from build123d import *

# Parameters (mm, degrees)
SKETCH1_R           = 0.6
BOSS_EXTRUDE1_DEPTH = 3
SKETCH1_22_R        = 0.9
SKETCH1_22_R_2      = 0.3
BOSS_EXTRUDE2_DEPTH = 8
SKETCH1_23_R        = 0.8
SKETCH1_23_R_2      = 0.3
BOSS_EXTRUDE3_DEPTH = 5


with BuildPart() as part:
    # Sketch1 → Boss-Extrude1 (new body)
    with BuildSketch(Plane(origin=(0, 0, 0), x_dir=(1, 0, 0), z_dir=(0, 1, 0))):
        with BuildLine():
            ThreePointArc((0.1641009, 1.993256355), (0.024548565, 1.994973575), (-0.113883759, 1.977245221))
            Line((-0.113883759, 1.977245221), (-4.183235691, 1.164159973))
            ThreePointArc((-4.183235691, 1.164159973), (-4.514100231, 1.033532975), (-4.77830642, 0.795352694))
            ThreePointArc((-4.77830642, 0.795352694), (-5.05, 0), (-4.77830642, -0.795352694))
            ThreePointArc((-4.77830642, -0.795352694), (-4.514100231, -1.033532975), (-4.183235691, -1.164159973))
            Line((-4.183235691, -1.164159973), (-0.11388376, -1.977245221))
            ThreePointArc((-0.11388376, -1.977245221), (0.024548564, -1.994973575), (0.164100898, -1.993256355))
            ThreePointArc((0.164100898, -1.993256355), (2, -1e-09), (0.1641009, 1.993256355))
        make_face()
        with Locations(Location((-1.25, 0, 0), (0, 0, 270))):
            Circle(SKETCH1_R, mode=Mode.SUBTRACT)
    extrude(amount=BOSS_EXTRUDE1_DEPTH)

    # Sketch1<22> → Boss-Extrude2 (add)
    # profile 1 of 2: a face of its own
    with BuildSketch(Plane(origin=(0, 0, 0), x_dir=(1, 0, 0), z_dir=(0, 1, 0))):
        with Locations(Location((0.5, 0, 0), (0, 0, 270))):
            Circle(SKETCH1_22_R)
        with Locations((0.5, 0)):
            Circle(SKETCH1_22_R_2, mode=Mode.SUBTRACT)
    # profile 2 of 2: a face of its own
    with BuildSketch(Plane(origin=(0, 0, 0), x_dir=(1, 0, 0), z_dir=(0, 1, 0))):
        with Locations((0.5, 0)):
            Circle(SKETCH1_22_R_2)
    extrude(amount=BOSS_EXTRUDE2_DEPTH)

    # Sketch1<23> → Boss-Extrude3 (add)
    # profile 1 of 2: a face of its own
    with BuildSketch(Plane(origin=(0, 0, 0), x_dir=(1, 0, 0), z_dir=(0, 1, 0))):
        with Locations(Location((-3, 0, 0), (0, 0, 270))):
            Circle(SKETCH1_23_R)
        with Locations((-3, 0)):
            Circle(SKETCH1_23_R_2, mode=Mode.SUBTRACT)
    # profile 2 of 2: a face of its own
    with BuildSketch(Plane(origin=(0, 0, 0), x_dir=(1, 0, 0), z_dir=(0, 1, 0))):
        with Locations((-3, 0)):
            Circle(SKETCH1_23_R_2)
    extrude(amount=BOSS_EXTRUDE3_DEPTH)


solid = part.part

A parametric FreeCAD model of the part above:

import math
import FreeCAD as App
import Part
import Sketcher
from FreeCAD import Vector
Q = App.Units.Quantity

doc = App.newDocument("Part")
body = doc.addObject("PartDesign::Body", "Body")

# Sketch on XZ plane
sketch1 = doc.addObject("Sketcher::SketchObject", "Sketch")
body.addObject(sketch1)
sketch1.AttachmentSupport = (doc.XZ_Plane, [""])
sketch1.MapMode = "FlatFace"
sketch1.addGeometry([
    Part.ArcOfCircle(Part.Circle(Vector(0.08, -1, 0), Vector(0, 0, 1), 1), math.radians(-101.3), math.radians(-85.29)),  # 0
    Part.LineSegment(Vector(-0.11, -1.98, 0), Vector(-4.18, -1.16, 0)),  # 1
    Part.ArcOfCircle(Part.Circle(Vector(-3.99, -0.18, 0), Vector(0, 0, 1), 1), math.radians(-142), math.radians(-101)),  # 2
    Part.ArcOfCircle(Part.Circle(Vector(-3.75, 0, 0), Vector(0, 0, 1), 1.3), math.radians(142), math.radians(218)),  # 3
    Part.ArcOfCircle(Part.Circle(Vector(-3.99, 0.18, 0), Vector(0, 0, 1), 1), math.radians(101), math.radians(142)),  # 4
    Part.LineSegment(Vector(-4.18, 1.16, 0), Vector(-0.11, 1.98, 0)),  # 5
    Part.ArcOfCircle(Part.Circle(Vector(0.08, 1, 0), Vector(0, 0, 1), 1), math.radians(85.29), math.radians(101.3)),  # 6
    Part.ArcOfCircle(Part.Circle(Vector(0, 0, 0), Vector(0, 0, 1), 2), math.radians(-85), math.radians(85)),  # 7
    Part.Circle(Vector(-1.25, 0, 0), Vector(0, 0, 1), 0.6),  # 8
], False)
sketch1.addConstraint([
    Sketcher.Constraint("Tangent", 0, 1, 1, 1),
    Sketcher.Constraint("Tangent", 1, 2, 2, 2),
    Sketcher.Constraint("Tangent", 2, 1, 3, 2),
    Sketcher.Constraint("Tangent", 3, 1, 4, 2),
    Sketcher.Constraint("Tangent", 4, 1, 5, 1),
    Sketcher.Constraint("Tangent", 5, 2, 6, 2),
    Sketcher.Constraint("Tangent", 6, 1, 7, 2),
    Sketcher.Constraint("Tangent", 7, 1, 0, 2),
    Sketcher.Constraint("Coincident", 7, 3, -1, 1),
    Sketcher.Constraint("Equal", 0, 2),
    Sketcher.Constraint("Equal", 2, 4),
    Sketcher.Constraint("Equal", 4, 6),
    Sketcher.Constraint("Symmetric", 2, 3, 4, 3, -1),
    Sketcher.Constraint("PointOnObject", 8, 3, -1),
    Sketcher.Constraint("Vertical", 0, 3, 6, 3),
    Sketcher.Constraint("Radius", 0, Q("1 mm")),
    Sketcher.Constraint("Radius", 7, Q("2 mm")),
    Sketcher.Constraint("Diameter", 8, Q("1.2 mm")),
    Sketcher.Constraint("Radius", 3, Q("1.3 mm")),
    Sketcher.Constraint("DistanceX", 3, 3, 8, 3, Q("2.5 mm")),
    Sketcher.Constraint("DistanceX", 3, 3, -1, 1, Q("3.75 mm")),
    Sketcher.Constraint("DistanceX", 2, 3, -1, 1, Q("3.987301 mm")),
    Sketcher.Constraint("DistanceX", -1, 1, 6, 1, Q("0.164101 mm")),
])
pad1 = doc.addObject("PartDesign::Pad", "Pad")
body.addObject(pad1)
pad1.Profile = sketch1
pad1.Length = 3
pad1.Reversed = True

# Sketch on XZ plane
sketch2 = doc.addObject("Sketcher::SketchObject", "Sketch001")
body.addObject(sketch2)
sketch2.AttachmentSupport = (doc.XZ_Plane, [""])
sketch2.MapMode = "FlatFace"
sketch2.addGeometry(Part.Circle(Vector(0.5, 0, 0), Vector(0, 0, 1), 0.9), False)
sketch2.addConstraint([
    Sketcher.Constraint("PointOnObject", 0, 3, -1),
    Sketcher.Constraint("Diameter", 0, Q("1.8 mm")),
    Sketcher.Constraint("DistanceX", -1, 1, 0, 3, Q("0.5 mm")),
])
pad2 = doc.addObject("PartDesign::Pad", "Pad001")
body.addObject(pad2)
pad2.Profile = sketch2
pad2.Length = 8
pad2.Reversed = True

# Sketch on XZ plane
sketch3 = doc.addObject("Sketcher::SketchObject", "Sketch002")
body.addObject(sketch3)
sketch3.AttachmentSupport = (doc.XZ_Plane, [""])
sketch3.MapMode = "FlatFace"
sketch3.addGeometry(Part.Circle(Vector(-3, 0, 0), Vector(0, 0, 1), 0.8), False)
sketch3.addConstraint([
    Sketcher.Constraint("PointOnObject", 0, 3, -1),
    Sketcher.Constraint("Diameter", 0, Q("1.6 mm")),
    Sketcher.Constraint("DistanceX", 0, 3, -1, 1, Q("3 mm")),
])
pad3 = doc.addObject("PartDesign::Pad", "Pad002")
body.addObject(pad3)
pad3.Profile = sketch3
pad3.Length = 5
pad3.Reversed = True

doc.recompute()
